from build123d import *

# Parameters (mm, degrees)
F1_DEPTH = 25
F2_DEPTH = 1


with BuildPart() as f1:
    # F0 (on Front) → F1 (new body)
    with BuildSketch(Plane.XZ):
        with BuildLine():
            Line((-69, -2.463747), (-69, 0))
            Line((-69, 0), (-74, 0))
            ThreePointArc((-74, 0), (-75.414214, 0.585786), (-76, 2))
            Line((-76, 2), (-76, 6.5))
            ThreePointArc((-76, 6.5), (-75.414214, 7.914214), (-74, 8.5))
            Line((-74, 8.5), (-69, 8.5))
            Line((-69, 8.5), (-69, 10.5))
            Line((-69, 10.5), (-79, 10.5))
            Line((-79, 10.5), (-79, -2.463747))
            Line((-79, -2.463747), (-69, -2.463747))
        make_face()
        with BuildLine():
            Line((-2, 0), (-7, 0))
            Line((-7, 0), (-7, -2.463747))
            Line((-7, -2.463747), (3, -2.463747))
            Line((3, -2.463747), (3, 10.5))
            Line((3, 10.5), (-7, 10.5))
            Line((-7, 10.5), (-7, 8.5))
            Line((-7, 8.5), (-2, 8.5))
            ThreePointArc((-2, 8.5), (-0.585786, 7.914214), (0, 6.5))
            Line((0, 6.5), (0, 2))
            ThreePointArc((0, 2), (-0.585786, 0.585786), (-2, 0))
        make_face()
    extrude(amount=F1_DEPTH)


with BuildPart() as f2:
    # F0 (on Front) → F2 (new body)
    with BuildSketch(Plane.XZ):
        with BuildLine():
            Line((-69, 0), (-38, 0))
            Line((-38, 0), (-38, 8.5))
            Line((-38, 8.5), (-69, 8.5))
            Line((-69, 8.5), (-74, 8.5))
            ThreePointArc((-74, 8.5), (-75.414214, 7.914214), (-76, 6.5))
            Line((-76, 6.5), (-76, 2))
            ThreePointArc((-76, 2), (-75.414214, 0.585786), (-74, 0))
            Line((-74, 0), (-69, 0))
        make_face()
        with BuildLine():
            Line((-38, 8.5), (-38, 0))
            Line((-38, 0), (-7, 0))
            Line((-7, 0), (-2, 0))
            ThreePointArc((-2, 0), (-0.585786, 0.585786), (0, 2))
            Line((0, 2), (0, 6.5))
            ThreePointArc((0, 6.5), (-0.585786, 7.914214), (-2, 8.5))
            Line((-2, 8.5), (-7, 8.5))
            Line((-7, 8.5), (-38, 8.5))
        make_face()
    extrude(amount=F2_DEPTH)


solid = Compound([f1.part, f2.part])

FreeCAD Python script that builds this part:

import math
import FreeCAD as App
import Part
import Sketcher

V = App.Vector

doc = App.newDocument("Part")
body = doc.addObject("PartDesign::Body", "Body")
body.AllowCompound = True

# Sketch on XZ plane
sketch1 = doc.addObject("Sketcher::SketchObject", "Sketch")
body.addObject(sketch1)
sketch1.AttachmentSupport = (doc.XZ_Plane, [""])
sketch1.MapMode = "FlatFace"
sketch1.addGeometry([
    Part.LineSegment(V(-69, -2.5, 0), V(-69, 0, 0)),  # 0
    Part.LineSegment(V(-69, 0, 0), V(-74, 0, 0)),  # 1
    Part.ArcOfCircle(Part.Circle(V(-74, 2, 0), V(0, 0, 1), 2), math.radians(180), math.radians(270)),  # 2
    Part.LineSegment(V(-76, 2, 0), V(-76, 6.5, 0)),  # 3
    Part.ArcOfCircle(Part.Circle(V(-74, 6.5, 0), V(0, 0, 1), 2), math.radians(90), math.radians(180)),  # 4
    Part.LineSegment(V(-74, 8.5, 0), V(-69, 8.5, 0)),  # 5
    Part.LineSegment(V(-69, 8.5, 0), V(-69, 10.5, 0)),  # 6
    Part.LineSegment(V(-69, 10.5, 0), V(-79, 10.5, 0)),  # 7
    Part.LineSegment(V(-79, 10.5, 0), V(-79, -2.5, 0)),  # 8
    Part.LineSegment(V(-79, -2.5, 0), V(-69, -2.5, 0)),  # 9
    Part.LineSegment(V(-2, 0, 0), V(-7, 0, 0)),  # 10
    Part.LineSegment(V(-7, 0, 0), V(-7, -2.5, 0)),  # 11
    Part.LineSegment(V(-7, -2.5, 0), V(3, -2.5, 0)),  # 12
    Part.LineSegment(V(3, -2.5, 0), V(3, 10.5, 0)),  # 13
    Part.LineSegment(V(3, 10.5, 0), V(-7, 10.5, 0)),  # 14
    Part.LineSegment(V(-7, 10.5, 0), V(-7, 8.5, 0)),  # 15
    Part.LineSegment(V(-7, 8.5, 0), V(-2, 8.5, 0)),  # 16
    Part.ArcOfCircle(Part.Circle(V(-2, 6.5, 0), V(0, 0, 1), 2), math.radians(0), math.radians(90)),  # 17
    Part.LineSegment(V(0, 6.5, 0), V(0, 2, 0)),  # 18
    Part.ArcOfCircle(Part.Circle(V(-2, 2, 0), V(0, 0, 1), 2), math.radians(-90), math.radians(0)),  # 19
], False)
sketch1.addConstraint([
    Sketcher.Constraint("Coincident", 0, 2, 1, 1),
    Sketcher.Constraint("Tangent", 1, 2, 2, 2),
    Sketcher.Constraint("Tangent", 2, 1, 3, 1),
    Sketcher.Constraint("Tangent", 3, 2, 4, 2),
    Sketcher.Constraint("Tangent", 4, 1, 5, 1),
    Sketcher.Constraint("Coincident", 5, 2, 6, 1),
    Sketcher.Constraint("Coincident", 6, 2, 7, 1),
    Sketcher.Constraint("Coincident", 7, 2, 8, 1),
    Sketcher.Constraint("Coincident", 8, 2, 9, 1),
    Sketcher.Constraint("Coincident", 9, 2, 0, 1),
    Sketcher.Constraint("Coincident", 10, 2, 11, 1),
    Sketcher.Constraint("Coincident", 11, 2, 12, 1),
    Sketcher.Constraint("Coincident", 12, 2, 13, 1),
    Sketcher.Constraint("Coincident", 13, 2, 14, 1),
    Sketcher.Constraint("Coincident", 14, 2, 15, 1),
    Sketcher.Constraint("Coincident", 15, 2, 16, 1),
    Sketcher.Constraint("Tangent", 16, 2, 17, 2),
    Sketcher.Constraint("Tangent", 17, 1, 18, 1),
    Sketcher.Constraint("Tangent", 18, 2, 19, 2),
    Sketcher.Constraint("Tangent", 19, 1, 10, 1),
    Sketcher.Constraint("Vertical", 0),
    Sketcher.Constraint("Horizontal", 1),
    Sketcher.Constraint("Vertical", 3),
    Sketcher.Constraint("Horizontal", 5),
    Sketcher.Constraint("Vertical", 6),
    Sketcher.Constraint("Horizontal", 7),
    Sketcher.Constraint("Vertical", 8),
    Sketcher.Constraint("Horizontal", 9),
    Sketcher.Constraint("Horizontal", 10),
    Sketcher.Constraint("Vertical", 11),
    Sketcher.Constraint("Horizontal", 12),
    Sketcher.Constraint("Vertical", 13),
    Sketcher.Constraint("Horizontal", 14),
    Sketcher.Constraint("Vertical", 15),
    Sketcher.Constraint("Horizontal", 16),
    Sketcher.Constraint("Vertical", 18),
    Sketcher.Constraint("Equal", 2, 4),
    Sketcher.Constraint("Equal", 4, 17),
    Sketcher.Constraint("Equal", 17, 19),
    Sketcher.Constraint("PointOnObject", 0, 2, -1),
    Sketcher.Constraint("PointOnObject", 10, 2, -1),
    Sketcher.Constraint("PointOnObject", 17, 1, -2),
    Sketcher.Constraint("Horizontal", 4, 3, 17, 3),
    Sketcher.Constraint("Horizontal", 9, 2, 11, 2),
    Sketcher.Constraint("Horizontal", 7, 2, 13, 2),
    Sketcher.Constraint("Vertical", 0, 2, 5, 2),
    Sketcher.Constraint("Vertical", 11, 2, 14, 2),
    Sketcher.Constraint("Equal", 5, 10),
    Sketcher.Constraint("Equal", 9, 12),
    Sketcher.Constraint("Radius", 2, 1.999999),
    Sketcher.Constraint("DistanceX", 1, 2, 1, 1, 5.0),
    Sketcher.Constraint("DistanceX", 7, 2, 7, 1, 10.0),
    Sketcher.Constraint("DistanceY", 6, 1, 6, 2, 2.0),
    Sketcher.Constraint("DistanceY", 3, 1, 3, 2, 4.5),
    Sketcher.Constraint("DistanceX", 2, 3, -1, 1, 74.000001),
    Sketcher.Constraint("DistanceY", 0, 1, 0, 2, 2.463747),
])
pad1 = doc.addObject("PartDesign::Pad", "Pad")
body.addObject(pad1)
pad1.Profile = sketch1
pad1.Length = 25
body2 = doc.addObject("PartDesign::Body", "Body001")

# Sketch on XZ plane
sketch2 = doc.addObject("Sketcher::SketchObject", "Sketch001")
body2.addObject(sketch2)
sketch2.AttachmentSupport = (doc.getObject("XZ_Plane001"), [""])
sketch2.MapMode = "FlatFace"
sketch2.addGeometry([
    Part.ArcOfCircle(Part.Circle(V(-74, 6.5, 0), V(0, 0, 1), 2), math.radians(90), math.radians(180)),  # 0
    Part.LineSegment(V(-76, 6.5, 0), V(-76, 2, 0)),  # 1
    Part.ArcOfCircle(Part.Circle(V(-74, 2, 0), V(0, 0, 1), 2), math.radians(180), math.radians(270)),  # 2
    Part.LineSegment(V(-74, 0, 0), V(-2, 0, 0)),  # 3
    Part.ArcOfCircle(Part.Circle(V(-2, 2, 0), V(0, 0, 1), 2), math.radians(-90), math.radians(0)),  # 4
    Part.LineSegment(V(0, 2, 0), V(0, 6.5, 0)),  # 5
    Part.ArcOfCircle(Part.Circle(V(-2, 6.5, 0), V(0, 0, 1), 2), math.radians(0), math.radians(90)),  # 6
    Part.LineSegment(V(-2, 8.5, 0), V(-74, 8.5, 0)),  # 7
], False)
sketch2.addConstraint([
    Sketcher.Constraint("Tangent", 0, 2, 1, 1),
    Sketcher.Constraint("Tangent", 1, 2, 2, 1),
    Sketcher.Constraint("Tangent", 2, 2, 3, 1),
    Sketcher.Constraint("Tangent", 3, 2, 4, 1),
    Sketcher.Constraint("Tangent", 4, 2, 5, 1),
    Sketcher.Constraint("Tangent", 5, 2, 6, 1),
    Sketcher.Constraint("Tangent", 6, 2, 7, 1),
    Sketcher.Constraint("Tangent", 7, 2, 0, 1),
    Sketcher.Constraint("Vertical", 1),
    Sketcher.Constraint("Horizontal", 3),
    Sketcher.Constraint("Vertical", 5),
    Sketcher.Constraint("Horizontal", 7),
    Sketcher.Constraint("Equal", 0, 2),
    Sketcher.Constraint("Equal", 2, 4),
    Sketcher.Constraint("Equal", 4, 6),
    Sketcher.Constraint("PointOnObject", 2, 2, -1),
    Sketcher.Constraint("PointOnObject", 4, 2, -2),
    Sketcher.Constraint("Radius", 0, 1.999999),
    Sketcher.Constraint("DistanceX", 3, 1, 3, 2, 72.0),
    Sketcher.Constraint("DistanceY", 1, 2, 1, 1, 4.5),
])
pad2 = doc.addObject("PartDesign::Pad", "Pad001")
body2.addObject(pad2)
pad2.Profile = sketch2
pad2.Length = 1

doc.recompute()
